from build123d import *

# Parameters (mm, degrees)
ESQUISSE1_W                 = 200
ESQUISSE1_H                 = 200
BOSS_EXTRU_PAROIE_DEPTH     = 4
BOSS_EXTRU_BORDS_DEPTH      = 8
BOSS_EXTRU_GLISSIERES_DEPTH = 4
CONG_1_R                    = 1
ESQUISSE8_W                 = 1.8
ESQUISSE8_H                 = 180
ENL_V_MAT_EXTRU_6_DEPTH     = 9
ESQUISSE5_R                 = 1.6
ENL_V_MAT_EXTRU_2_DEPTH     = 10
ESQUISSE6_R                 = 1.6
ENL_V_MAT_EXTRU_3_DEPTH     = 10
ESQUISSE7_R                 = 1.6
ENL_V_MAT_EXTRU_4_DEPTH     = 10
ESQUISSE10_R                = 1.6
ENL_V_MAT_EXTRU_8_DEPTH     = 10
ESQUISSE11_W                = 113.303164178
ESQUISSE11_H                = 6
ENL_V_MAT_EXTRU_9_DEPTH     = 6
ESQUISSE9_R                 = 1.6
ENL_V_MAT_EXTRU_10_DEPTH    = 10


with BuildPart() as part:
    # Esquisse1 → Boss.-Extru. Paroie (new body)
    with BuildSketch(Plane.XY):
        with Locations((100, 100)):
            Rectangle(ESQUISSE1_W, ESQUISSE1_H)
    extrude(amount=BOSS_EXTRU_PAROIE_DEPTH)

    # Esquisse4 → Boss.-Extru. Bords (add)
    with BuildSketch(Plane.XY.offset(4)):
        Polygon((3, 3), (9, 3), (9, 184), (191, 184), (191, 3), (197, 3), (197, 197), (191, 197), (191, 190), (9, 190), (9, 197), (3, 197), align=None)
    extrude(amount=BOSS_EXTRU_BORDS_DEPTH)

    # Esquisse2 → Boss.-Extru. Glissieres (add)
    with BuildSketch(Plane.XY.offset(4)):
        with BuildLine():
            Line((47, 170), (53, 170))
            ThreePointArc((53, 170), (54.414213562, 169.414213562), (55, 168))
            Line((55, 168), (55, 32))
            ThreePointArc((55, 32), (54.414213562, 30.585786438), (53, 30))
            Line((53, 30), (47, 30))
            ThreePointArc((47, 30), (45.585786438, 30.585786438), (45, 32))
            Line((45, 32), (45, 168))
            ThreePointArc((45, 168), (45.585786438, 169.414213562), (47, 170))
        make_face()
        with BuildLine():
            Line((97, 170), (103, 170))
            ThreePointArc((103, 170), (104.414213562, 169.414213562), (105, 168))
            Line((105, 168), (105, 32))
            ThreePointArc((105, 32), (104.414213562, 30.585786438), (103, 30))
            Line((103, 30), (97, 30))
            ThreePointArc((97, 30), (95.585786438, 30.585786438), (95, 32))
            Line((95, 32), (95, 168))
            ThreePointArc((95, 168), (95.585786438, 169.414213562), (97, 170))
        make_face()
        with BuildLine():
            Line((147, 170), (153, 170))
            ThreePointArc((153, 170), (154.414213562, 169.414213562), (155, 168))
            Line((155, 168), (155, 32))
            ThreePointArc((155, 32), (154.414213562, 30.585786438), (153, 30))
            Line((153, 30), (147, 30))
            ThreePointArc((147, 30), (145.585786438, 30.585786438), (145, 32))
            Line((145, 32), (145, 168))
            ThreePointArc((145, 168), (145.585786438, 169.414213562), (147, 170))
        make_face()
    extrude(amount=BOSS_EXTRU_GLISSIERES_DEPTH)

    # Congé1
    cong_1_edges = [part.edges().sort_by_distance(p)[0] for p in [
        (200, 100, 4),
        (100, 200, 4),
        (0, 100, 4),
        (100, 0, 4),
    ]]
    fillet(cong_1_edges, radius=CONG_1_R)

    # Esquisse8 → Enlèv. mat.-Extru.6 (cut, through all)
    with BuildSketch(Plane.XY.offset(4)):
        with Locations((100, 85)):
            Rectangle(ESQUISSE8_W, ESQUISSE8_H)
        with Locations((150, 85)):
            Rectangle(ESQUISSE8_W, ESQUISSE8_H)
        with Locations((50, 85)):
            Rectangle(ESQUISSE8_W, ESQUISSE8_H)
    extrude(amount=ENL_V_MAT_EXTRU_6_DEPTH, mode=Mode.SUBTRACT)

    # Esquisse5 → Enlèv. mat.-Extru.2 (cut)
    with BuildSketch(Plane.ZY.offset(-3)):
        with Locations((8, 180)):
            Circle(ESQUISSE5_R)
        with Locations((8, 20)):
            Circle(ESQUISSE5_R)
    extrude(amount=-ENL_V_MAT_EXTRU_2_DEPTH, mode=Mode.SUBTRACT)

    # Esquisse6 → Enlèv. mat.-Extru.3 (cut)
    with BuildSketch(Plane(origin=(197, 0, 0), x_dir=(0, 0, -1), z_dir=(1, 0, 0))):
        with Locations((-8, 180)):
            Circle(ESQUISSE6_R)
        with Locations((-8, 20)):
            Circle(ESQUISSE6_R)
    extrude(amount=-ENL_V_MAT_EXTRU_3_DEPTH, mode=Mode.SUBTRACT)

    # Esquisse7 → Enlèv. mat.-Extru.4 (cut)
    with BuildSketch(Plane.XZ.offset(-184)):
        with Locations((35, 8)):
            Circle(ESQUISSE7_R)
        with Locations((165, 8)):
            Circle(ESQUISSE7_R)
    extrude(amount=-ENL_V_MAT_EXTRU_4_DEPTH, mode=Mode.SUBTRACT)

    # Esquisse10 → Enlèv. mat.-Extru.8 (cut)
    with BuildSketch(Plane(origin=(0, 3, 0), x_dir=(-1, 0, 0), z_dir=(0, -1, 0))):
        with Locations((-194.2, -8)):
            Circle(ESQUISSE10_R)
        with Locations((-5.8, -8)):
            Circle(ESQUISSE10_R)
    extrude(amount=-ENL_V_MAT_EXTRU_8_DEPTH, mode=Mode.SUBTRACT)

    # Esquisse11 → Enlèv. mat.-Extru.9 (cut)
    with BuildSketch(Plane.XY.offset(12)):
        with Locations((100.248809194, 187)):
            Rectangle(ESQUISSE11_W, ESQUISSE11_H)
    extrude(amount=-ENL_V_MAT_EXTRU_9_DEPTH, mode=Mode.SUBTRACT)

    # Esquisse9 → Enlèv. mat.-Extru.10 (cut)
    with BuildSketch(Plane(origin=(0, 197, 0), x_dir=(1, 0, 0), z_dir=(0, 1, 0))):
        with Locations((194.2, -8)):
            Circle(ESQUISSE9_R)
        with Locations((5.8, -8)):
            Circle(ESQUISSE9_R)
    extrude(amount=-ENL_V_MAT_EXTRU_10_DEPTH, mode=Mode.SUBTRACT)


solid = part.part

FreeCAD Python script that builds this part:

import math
import FreeCAD as App
import Part
import Sketcher


def edges_at(feature, points):
    """Names of the edges that pass closest to the given points."""
    edges = feature.Shape.Edges
    near = lambda p: min(range(len(edges)), key=lambda i: edges[i].distToShape(Part.Vertex(*p))[0])
    return sorted({f"Edge{near(p) + 1}" for p in points})


def add_polygon(sketch, points):
    """Adds a closed chain of lines whose ends are joined by coincident constraints."""
    first, n = sketch.GeometryCount, len(points)
    for a, b in zip(points, points[1:] + points[:1]):
        sketch.addGeometry(Part.LineSegment(App.Vector(*a, 0), App.Vector(*b, 0)), False)
    for i in range(n):
        sketch.addConstraint(Sketcher.Constraint("Coincident", first + i, 2, first + (i + 1) % n, 1))

doc = App.newDocument("Part")
params = doc.addObject("Spreadsheet::Sheet", "Params")
for row, (alias, value) in enumerate([
    ("sketch1_width", "200 mm"),
    ("pad1_length", "4 mm"),
    ("sketch2_width", "6 mm"),
    ("sketch2_width2", "182 mm"),
    ("sketch2_height", "181 mm"),
    ("sketch2_height2", "194 mm"),
    ("sketch2_height3", "7 mm"),
    ("pad2_length", "8 mm"),
    ("sketch3_radius", "2 mm"),
    ("sketch3_width", "6 mm"),
    ("sketch3_height", "136 mm"),
    ("pad3_length", "4 mm"),
    ("fillet_radius", "1 mm"),
    ("sketch4_height", "180 mm"),
    ("sketch4_width", "1.8 mm"),
    ("sketch5_diameter", "3.2 mm"),
    ("pocket2_length", "10 mm"),
    ("sketch6_diameter", "3.2 mm"),
    ("pocket3_length", "10 mm"),
    ("sketch7_diameter", "3.2 mm"),
    ("pocket4_length", "10 mm"),
    ("sketch8_diameter", "3.2 mm"),
    ("pocket5_length", "10 mm"),
    ("sketch9_height", "6 mm"),
    ("pocket6_length", "6 mm"),
    ("sketch10_diameter", "3.2 mm"),
    ("pocket7_length", "10 mm"),
], start=1):
    params.set(f"A{row}", alias)
    params.set(f"B{row}", "=" + value)
    params.setAlias(f"B{row}", alias)

body = doc.addObject("PartDesign::Body", "Body")

# Sketch on XY plane
sketch1 = body.newObject("Sketcher::SketchObject", "Sketch")
sketch1.AttachmentSupport = (doc.getObject("XY_Plane"), [""])
sketch1.MapMode = "FlatFace"
add_polygon(sketch1, [(0, 200), (0, 0), (200, 0), (200, 200)])  # lines 0-3
sketch1.addConstraint([
    Sketcher.Constraint("Vertical", 0),
    Sketcher.Constraint("Horizontal", 1),
    Sketcher.Constraint("Vertical", 2),
    Sketcher.Constraint("Horizontal", 3),
    Sketcher.Constraint("Coincident", 0, 2, -1, 1),
    Sketcher.Constraint("Equal", 3, 0),
    Sketcher.Constraint("DistanceX", 1, 1, 1, 2, 200.0),
])
sketch1.setExpression("Constraints[10]", "Params.sketch1_width")
pad1 = body.newObject("PartDesign::Pad", "Pad")
pad1.Profile = sketch1
pad1.setExpression("Length", "Params.pad1_length")

# Sketch on XY plane
sketch2 = body.newObject("Sketcher::SketchObject", "Sketch001")
sketch2.AttachmentSupport = (doc.getObject("XY_Plane"), [""])
sketch2.MapMode = "FlatFace"
sketch2.AttachmentOffset = App.Placement(App.Vector(0, 0, 4), App.Rotation())
add_polygon(sketch2, [(3, 3), (9, 3), (9, 184), (191, 184), (191, 3), (197, 3), (197, 197), (191, 197), (191, 190), (9, 190), (9, 197), (3, 197)])  # lines 0-11
sketch2.addConstraint([
    Sketcher.Constraint("Horizontal", 0),
    Sketcher.Constraint("Vertical", 1),
    Sketcher.Constraint("Horizontal", 2),
    Sketcher.Constraint("Vertical", 3),
    Sketcher.Constraint("Horizontal", 4),
    Sketcher.Constraint("Vertical", 5),
    Sketcher.Constraint("Horizontal", 6),
    Sketcher.Constraint("Vertical", 7),
    Sketcher.Constraint("Horizontal", 8),
    Sketcher.Constraint("Vertical", 9),
    Sketcher.Constraint("Horizontal", 10),
    Sketcher.Constraint("Vertical", 11),
    Sketcher.Constraint("Horizontal", 0, 2, 3, 2),
    Sketcher.Constraint("Horizontal", 6, 2, 9, 2),
    Sketcher.Constraint("Vertical", 3, 2, 6, 2),
    Sketcher.Constraint("Vertical", 1, 2, 8, 2),
    Sketcher.Constraint("Equal", 0, 4),
    Sketcher.Constraint("DistanceX", 0, 1, 0, 2, 6.0),
    Sketcher.Constraint("DistanceX", 2, 1, 2, 2, 182.0),
    Sketcher.Constraint("DistanceY", 1, 1, 1, 2, 181.0),
    Sketcher.Constraint("DistanceY", 5, 1, 5, 2, 194.0),
    Sketcher.Constraint("DistanceY", 7, 2, 7, 1, 7.0),
    Sketcher.Constraint("DistanceX", -1, 1, 0, 2, 9.0),
    Sketcher.Constraint("DistanceY", -1, 1, 0, 2, 3.0),
])
sketch2.setExpression("Constraints[29]", "Params.sketch2_width")
sketch2.setExpression("Constraints[30]", "Params.sketch2_width2")
sketch2.setExpression("Constraints[31]", "Params.sketch2_height")
sketch2.setExpression("Constraints[32]", "Params.sketch2_height2")
sketch2.setExpression("Constraints[33]", "Params.sketch2_height3")
pad2 = body.newObject("PartDesign::Pad", "Pad001")
pad2.Profile = sketch2
pad2.setExpression("Length", "Params.pad2_length")

# Sketch on XY plane
sketch3 = body.newObject("Sketcher::SketchObject", "Sketch002")
sketch3.AttachmentSupport = (doc.getObject("XY_Plane"), [""])
sketch3.MapMode = "FlatFace"
sketch3.AttachmentOffset = App.Placement(App.Vector(0, 0, 4), App.Rotation())
sketch3.addGeometry([
    Part.LineSegment(App.Vector(53, 170, 0), App.Vector(47, 170, 0)),  # 0
    Part.ArcOfCircle(Part.Circle(App.Vector(47, 168, 0), App.Vector(0, 0, 1), 2), math.radians(90), math.radians(180)),  # 1
    Part.LineSegment(App.Vector(45, 168, 0), App.Vector(45, 32, 0)),  # 2
    Part.ArcOfCircle(Part.Circle(App.Vector(47, 32, 0), App.Vector(0, 0, 1), 2), math.radians(-180), math.radians(-90)),  # 3
    Part.LineSegment(App.Vector(47, 30, 0), App.Vector(53, 30, 0)),  # 4
    Part.ArcOfCircle(Part.Circle(App.Vector(53, 32, 0), App.Vector(0, 0, 1), 2), math.radians(-90), math.radians(0)),  # 5
    Part.LineSegment(App.Vector(55, 32, 0), App.Vector(55, 168, 0)),  # 6
    Part.ArcOfCircle(Part.Circle(App.Vector(53, 168, 0), App.Vector(0, 0, 1), 2), math.radians(0), math.radians(90)),  # 7
    Part.LineSegment(App.Vector(103, 170, 0), App.Vector(97, 170, 0)),  # 8
    Part.ArcOfCircle(Part.Circle(App.Vector(97, 168, 0), App.Vector(0, 0, 1), 2), math.radians(90), math.radians(180)),  # 9
    Part.LineSegment(App.Vector(95, 168, 0), App.Vector(95, 32, 0)),  # 10
    Part.ArcOfCircle(Part.Circle(App.Vector(97, 32, 0), App.Vector(0, 0, 1), 2), math.radians(-180), math.radians(-90)),  # 11
    Part.LineSegment(App.Vector(97, 30, 0), App.Vector(103, 30, 0)),  # 12
    Part.ArcOfCircle(Part.Circle(App.Vector(103, 32, 0), App.Vector(0, 0, 1), 2), math.radians(-90), math.radians(0)),  # 13
    Part.LineSegment(App.Vector(105, 32, 0), App.Vector(105, 168, 0)),  # 14
    Part.ArcOfCircle(Part.Circle(App.Vector(103, 168, 0), App.Vector(0, 0, 1), 2), math.radians(0), math.radians(90)),  # 15
    Part.LineSegment(App.Vector(153, 170, 0), App.Vector(147, 170, 0)),  # 16
    Part.ArcOfCircle(Part.Circle(App.Vector(147, 168, 0), App.Vector(0, 0, 1), 2), math.radians(90), math.radians(180)),  # 17
    Part.LineSegment(App.Vector(145, 168, 0), App.Vector(145, 32, 0)),  # 18
    Part.ArcOfCircle(Part.Circle(App.Vector(147, 32, 0), App.Vector(0, 0, 1), 2), math.radians(-180), math.radians(-90)),  # 19
    Part.LineSegment(App.Vector(147, 30, 0), App.Vector(153, 30, 0)),  # 20
    Part.ArcOfCircle(Part.Circle(App.Vector(153, 32, 0), App.Vector(0, 0, 1), 2), math.radians(-90), math.radians(0)),  # 21
    Part.LineSegment(App.Vector(155, 32, 0), App.Vector(155, 168, 0)),  # 22
    Part.ArcOfCircle(Part.Circle(App.Vector(153, 168, 0), App.Vector(0, 0, 1), 2), math.radians(0), math.radians(90)),  # 23
], False)
sketch3.addConstraint([
    Sketcher.Constraint("Tangent", 0, 2, 1, 1),
    Sketcher.Constraint("Tangent", 1, 2, 2, 1),
    Sketcher.Constraint("Tangent", 2, 2, 3, 1),
    Sketcher.Constraint("Tangent", 3, 2, 4, 1),
    Sketcher.Constraint("Tangent", 4, 2, 5, 1),
    Sketcher.Constraint("Tangent", 5, 2, 6, 1),
    Sketcher.Constraint("Tangent", 6, 2, 7, 1),
    Sketcher.Constraint("Tangent", 7, 2, 0, 1),
    Sketcher.Constraint("Tangent", 8, 2, 9, 1),
    Sketcher.Constraint("Tangent", 9, 2, 10, 1),
    Sketcher.Constraint("Tangent", 10, 2, 11, 1),
    Sketcher.Constraint("Tangent", 11, 2, 12, 1),
    Sketcher.Constraint("Tangent", 12, 2, 13, 1),
    Sketcher.Constraint("Tangent", 13, 2, 14, 1),
    Sketcher.Constraint("Tangent", 14, 2, 15, 1),
    Sketcher.Constraint("Tangent", 15, 2, 8, 1),
    Sketcher.Constraint("Tangent", 16, 2, 17, 1),
    Sketcher.Constraint("Tangent", 17, 2, 18, 1),
    Sketcher.Constraint("Tangent", 18, 2, 19, 1),
    Sketcher.Constraint("Tangent", 19, 2, 20, 1),
    Sketcher.Constraint("Tangent", 20, 2, 21, 1),
    Sketcher.Constraint("Tangent", 21, 2, 22, 1),
    Sketcher.Constraint("Tangent", 22, 2, 23, 1),
    Sketcher.Constraint("Tangent", 23, 2, 16, 1),
    Sketcher.Constraint("Horizontal", 0),
    Sketcher.Constraint("Vertical", 2),
    Sketcher.Constraint("Horizontal", 4),
    Sketcher.Constraint("Vertical", 6),
    Sketcher.Constraint("Horizontal", 8),
    Sketcher.Constraint("Vertical", 10),
    Sketcher.Constraint("Horizontal", 12),
    Sketcher.Constraint("Vertical", 14),
    Sketcher.Constraint("Horizontal", 16),
    Sketcher.Constraint("Vertical", 18),
    Sketcher.Constraint("Horizontal", 20),
    Sketcher.Constraint("Vertical", 22),
    Sketcher.Constraint("Equal", 1, 3),
    Sketcher.Constraint("Equal", 3, 5),
    Sketcher.Constraint("Equal", 5, 7),
    Sketcher.Constraint("Equal", 7, 9),
    Sketcher.Constraint("Equal", 9, 11),
    Sketcher.Constraint("Equal", 11, 13),
    Sketcher.Constraint("Equal", 13, 15),
    Sketcher.Constraint("Equal", 15, 17),
    Sketcher.Constraint("Equal", 17, 19),
    Sketcher.Constraint("Equal", 19, 21),
    Sketcher.Constraint("Equal", 21, 23),
    Sketcher.Constraint("Horizontal", 7, 3, 9, 3),
    Sketcher.Constraint("Horizontal", 5, 3, 11, 3),
    Sketcher.Constraint("Horizontal", 15, 3, 17, 3),
    Sketcher.Constraint("Horizontal", 13, 3, 19, 3),
    Sketcher.Constraint("Equal", 4, 8),
    Sketcher.Constraint("Equal", 12, 16),
    Sketcher.Constraint("Radius", 1, 2.0),
    Sketcher.Constraint("DistanceX", 0, 2, 0, 1, 6.0),
    Sketcher.Constraint("DistanceY", 2, 2, 2, 1, 136.0),
    Sketcher.Constraint("DistanceX", -1, 1, 1, 3, 47.0),
    Sketcher.Constraint("DistanceY", -1, 1, 1, 3, 168.0),
    Sketcher.Constraint("DistanceX", -1, 1, 9, 3, 97.0),
    Sketcher.Constraint("DistanceX", -1, 1, 17, 3, 147.0),
])
sketch3.setExpression("Constraints[53]", "Params.sketch3_radius")
sketch3.setExpression("Constraints[54]", "Params.sketch3_width")
sketch3.setExpression("Constraints[55]", "Params.sketch3_height")
pad3 = body.newObject("PartDesign::Pad", "Pad002")
pad3.Profile = sketch3
pad3.setExpression("Length", "Params.pad3_length")
doc.recompute()

fillet = body.newObject("PartDesign::Fillet", "Fillet")
fillet.Base = (pad3, edges_at(pad3, [
    (200, 100, 4),
    (100, 200, 4),
    (0, 100, 4),
    (100, 0, 4),
]))
fillet.setExpression("Radius", "Params.fillet_radius")

# Sketch on XY plane
sketch4 = body.newObject("Sketcher::SketchObject", "Sketch003")
sketch4.AttachmentSupport = (doc.getObject("XY_Plane"), [""])
sketch4.MapMode = "FlatFace"
sketch4.AttachmentOffset = App.Placement(App.Vector(0, 0, 4), App.Rotation())
add_polygon(sketch4, [(99.1, 175), (99.1, -5), (100.9, -5), (100.9, 175)])  # lines 0-3
add_polygon(sketch4, [(149.1, 175), (149.1, -5), (150.9, -5), (150.9, 175)])  # lines 4-7
add_polygon(sketch4, [(49.1, 175), (49.1, -5), (50.9, -5), (50.9, 175)])  # lines 8-11
sketch4.addConstraint([
    Sketcher.Constraint("Vertical", 0),
    Sketcher.Constraint("Horizontal", 1),
    Sketcher.Constraint("Vertical", 2),
    Sketcher.Constraint("Horizontal", 3),
    Sketcher.Constraint("Vertical", 4),
    Sketcher.Constraint("Horizontal", 5),
    Sketcher.Constraint("Vertical", 6),
    Sketcher.Constraint("Horizontal", 7),
    Sketcher.Constraint("Vertical", 8),
    Sketcher.Constraint("Horizontal", 9),
    Sketcher.Constraint("Vertical", 10),
    Sketcher.Constraint("Horizontal", 11),
    Sketcher.Constraint("Horizontal", 1, 2, 4, 2),
    Sketcher.Constraint("Horizontal", 3, 2, 6, 2),
    Sketcher.Constraint("Horizontal", 5, 2, 8, 2),
    Sketcher.Constraint("Horizontal", 7, 2, 10, 2),
    Sketcher.Constraint("Equal", 3, 5),
    Sketcher.Constraint("Equal", 7, 9),
    Sketcher.Constraint("DistanceY", 0, 2, 0, 1, 180.0),
    Sketcher.Constraint("DistanceX", 1, 1, 1, 2, 1.8),
    Sketcher.Constraint("DistanceY", 0, 2, -1, 1, 5.0),
    Sketcher.Constraint("DistanceX", 0, 2, 4, 2, 50.0),
    Sketcher.Constraint("DistanceX", 8, 2, 0, 2, 50.0),
    Sketcher.Constraint("DistanceX", -1, 1, 0, 2, 99.1),
])
sketch4.setExpression("Constraints[30]", "Params.sketch4_height")
sketch4.setExpression("Constraints[31]", "Params.sketch4_width")
pocket1 = body.newObject("PartDesign::Pocket", "Pocket")
pocket1.Profile = sketch4
pocket1.Type = "ThroughAll"
pocket1.Reversed = True

# Sketch on YZ plane
sketch5 = body.newObject("Sketcher::SketchObject", "Sketch004")
sketch5.AttachmentSupport = (doc.getObject("YZ_Plane"), [""])
sketch5.MapMode = "FlatFace"
sketch5.AttachmentOffset = App.Placement(App.Vector(0, 0, 3), App.Rotation())
sketch5.addGeometry([
    Part.Circle(App.Vector(180, 8, 0), App.Vector(0, 0, 1), 1.6),
    Part.Circle(App.Vector(20, 8, 0), App.Vector(0, 0, 1), 1.6),
], False)
sketch5.addConstraint([
    Sketcher.Constraint("Equal", 0, 1),
    Sketcher.Constraint("Horizontal", 0, 3, 1, 3),
    Sketcher.Constraint("Diameter", 0, 3.2),
    Sketcher.Constraint("DistanceX", -1, 1, 0, 3, 180.0),
    Sketcher.Constraint("DistanceY", -1, 1, 0, 3, 8.0),
    Sketcher.Constraint("DistanceX", -1, 1, 1, 3, 20.0),
])
sketch5.setExpression("Constraints[2]", "Params.sketch5_diameter")
pocket2 = body.newObject("PartDesign::Pocket", "Pocket001")
pocket2.Profile = sketch5
pocket2.setExpression("Length", "Params.pocket2_length")
pocket2.Reversed = True

# Sketch on YZ plane
sketch6 = body.newObject("Sketcher::SketchObject", "Sketch005")
sketch6.AttachmentSupport = (doc.getObject("YZ_Plane"), [""])
sketch6.MapMode = "FlatFace"
sketch6.AttachmentOffset = App.Placement(App.Vector(0, 0, 197), App.Rotation())
sketch6.addGeometry([
    Part.Circle(App.Vector(180, 8, 0), App.Vector(0, 0, 1), 1.6),
    Part.Circle(App.Vector(20, 8, 0), App.Vector(0, 0, 1), 1.6),
], False)
sketch6.addConstraint([
    Sketcher.Constraint("Equal", 0, 1),
    Sketcher.Constraint("Horizontal", 0, 3, 1, 3),
    Sketcher.Constraint("Diameter", 0, 3.2),
    Sketcher.Constraint("DistanceX", -1, 1, 0, 3, 180.0),
    Sketcher.Constraint("DistanceY", -1, 1, 0, 3, 8.0),
    Sketcher.Constraint("DistanceX", -1, 1, 1, 3, 20.0),
])
sketch6.setExpression("Constraints[2]", "Params.sketch6_diameter")
pocket3 = body.newObject("PartDesign::Pocket", "Pocket002")
pocket3.Profile = sketch6
pocket3.setExpression("Length", "Params.pocket3_length")

# Sketch on XZ plane
sketch7 = body.newObject("Sketcher::SketchObject", "Sketch006")
sketch7.AttachmentSupport = (doc.getObject("XZ_Plane"), [""])
sketch7.MapMode = "FlatFace"
sketch7.AttachmentOffset = App.Placement(App.Vector(0, 0, -184), App.Rotation())
sketch7.addGeometry([
    Part.Circle(App.Vector(35, 8, 0), App.Vector(0, 0, 1), 1.6),
    Part.Circle(App.Vector(165, 8, 0), App.Vector(0, 0, 1), 1.6),
], False)
sketch7.addConstraint([
    Sketcher.Constraint("Equal", 0, 1),
    Sketcher.Constraint("Horizontal", 0, 3, 1, 3),
    Sketcher.Constraint("Diameter", 0, 3.2),
    Sketcher.Constraint("DistanceX", -1, 1, 0, 3, 35.0),
    Sketcher.Constraint("DistanceY", -1, 1, 0, 3, 8.0),
    Sketcher.Constraint("DistanceX", -1, 1, 1, 3, 165.0),
])
sketch7.setExpression("Constraints[2]", "Params.sketch7_diameter")
pocket4 = body.newObject("PartDesign::Pocket", "Pocket003")
pocket4.Profile = sketch7
pocket4.setExpression("Length", "Params.pocket4_length")

# Sketch on XZ plane
sketch8 = body.newObject("Sketcher::SketchObject", "Sketch007")
sketch8.AttachmentSupport = (doc.getObject("XZ_Plane"), [""])
sketch8.MapMode = "FlatFace"
sketch8.AttachmentOffset = App.Placement(App.Vector(0, 0, -3), App.Rotation())
sketch8.addGeometry([
    Part.Circle(App.Vector(194.2, 8, 0), App.Vector(0, 0, 1), 1.6),
    Part.Circle(App.Vector(5.8, 8, 0), App.Vector(0, 0, 1), 1.6),
], False)
sketch8.addConstraint([
    Sketcher.Constraint("Equal", 0, 1),
    Sketcher.Constraint("Horizontal", 0, 3, 1, 3),
    Sketcher.Constraint("Diameter", 0, 3.2),
    Sketcher.Constraint("DistanceY", -1, 1, 0, 3, 8.0),
    Sketcher.Constraint("DistanceX", -1, 1, 0, 3, 194.2),
    Sketcher.Constraint("DistanceX", -1, 1, 1, 3, 5.8),
])
sketch8.setExpression("Constraints[2]", "Params.sketch8_diameter")
pocket5 = body.newObject("PartDesign::Pocket", "Pocket004")
pocket5.Profile = sketch8
pocket5.setExpression("Length", "Params.pocket5_length")

# Sketch on XY plane
sketch9 = body.newObject("Sketcher::SketchObject", "Sketch008")
sketch9.AttachmentSupport = (doc.getObject("XY_Plane"), [""])
sketch9.MapMode = "FlatFace"
sketch9.AttachmentOffset = App.Placement(App.Vector(0, 0, 12), App.Rotation())
add_polygon(sketch9, [(44, 190), (44, 184), (157, 184), (157, 190)])  # lines 0-3
sketch9.addConstraint([
    Sketcher.Constraint("Vertical", 0),
    Sketcher.Constraint("Horizontal", 1),
    Sketcher.Constraint("Vertical", 2),
    Sketcher.Constraint("Horizontal", 3),
    Sketcher.Constraint("DistanceY", 0, 2, 0, 1, 6.0),
    Sketcher.Constraint("DistanceY", -1, 1, 0, 2, 184.0),
    Sketcher.Constraint("DistanceX", 1, 1, 1, 2, 113.303164),
    Sketcher.Constraint("DistanceX", -1, 1, 1, 2, 156.900391),
])
sketch9.setExpression("Constraints[8]", "Params.sketch9_height")
pocket6 = body.newObject("PartDesign::Pocket", "Pocket005")
pocket6.Profile = sketch9
pocket6.setExpression("Length", "Params.pocket6_length")

# Sketch on XZ plane
sketch10 = body.newObject("Sketcher::SketchObject", "Sketch009")
sketch10.AttachmentSupport = (doc.getObject("XZ_Plane"), [""])
sketch10.MapMode = "FlatFace"
sketch10.AttachmentOffset = App.Placement(App.Vector(0, 0, -197), App.Rotation())
sketch10.addGeometry([
    Part.Circle(App.Vector(194.2, 8, 0), App.Vector(0, 0, 1), 1.6),
    Part.Circle(App.Vector(5.8, 8, 0), App.Vector(0, 0, 1), 1.6),
], False)
sketch10.addConstraint([
    Sketcher.Constraint("Equal", 0, 1),
    Sketcher.Constraint("Horizontal", 0, 3, 1, 3),
    Sketcher.Constraint("Diameter", 0, 3.2),
    Sketcher.Constraint("DistanceY", -1, 1, 0, 3, 8.0),
    Sketcher.Constraint("DistanceX", -1, 1, 0, 3, 194.2),
    Sketcher.Constraint("DistanceX", -1, 1, 1, 3, 5.8),
])
sketch10.setExpression("Constraints[2]", "Params.sketch10_diameter")
pocket7 = body.newObject("PartDesign::Pocket", "Pocket006")
pocket7.Profile = sketch10
pocket7.setExpression("Length", "Params.pocket7_length")
pocket7.Reversed = True

doc.recompute()
